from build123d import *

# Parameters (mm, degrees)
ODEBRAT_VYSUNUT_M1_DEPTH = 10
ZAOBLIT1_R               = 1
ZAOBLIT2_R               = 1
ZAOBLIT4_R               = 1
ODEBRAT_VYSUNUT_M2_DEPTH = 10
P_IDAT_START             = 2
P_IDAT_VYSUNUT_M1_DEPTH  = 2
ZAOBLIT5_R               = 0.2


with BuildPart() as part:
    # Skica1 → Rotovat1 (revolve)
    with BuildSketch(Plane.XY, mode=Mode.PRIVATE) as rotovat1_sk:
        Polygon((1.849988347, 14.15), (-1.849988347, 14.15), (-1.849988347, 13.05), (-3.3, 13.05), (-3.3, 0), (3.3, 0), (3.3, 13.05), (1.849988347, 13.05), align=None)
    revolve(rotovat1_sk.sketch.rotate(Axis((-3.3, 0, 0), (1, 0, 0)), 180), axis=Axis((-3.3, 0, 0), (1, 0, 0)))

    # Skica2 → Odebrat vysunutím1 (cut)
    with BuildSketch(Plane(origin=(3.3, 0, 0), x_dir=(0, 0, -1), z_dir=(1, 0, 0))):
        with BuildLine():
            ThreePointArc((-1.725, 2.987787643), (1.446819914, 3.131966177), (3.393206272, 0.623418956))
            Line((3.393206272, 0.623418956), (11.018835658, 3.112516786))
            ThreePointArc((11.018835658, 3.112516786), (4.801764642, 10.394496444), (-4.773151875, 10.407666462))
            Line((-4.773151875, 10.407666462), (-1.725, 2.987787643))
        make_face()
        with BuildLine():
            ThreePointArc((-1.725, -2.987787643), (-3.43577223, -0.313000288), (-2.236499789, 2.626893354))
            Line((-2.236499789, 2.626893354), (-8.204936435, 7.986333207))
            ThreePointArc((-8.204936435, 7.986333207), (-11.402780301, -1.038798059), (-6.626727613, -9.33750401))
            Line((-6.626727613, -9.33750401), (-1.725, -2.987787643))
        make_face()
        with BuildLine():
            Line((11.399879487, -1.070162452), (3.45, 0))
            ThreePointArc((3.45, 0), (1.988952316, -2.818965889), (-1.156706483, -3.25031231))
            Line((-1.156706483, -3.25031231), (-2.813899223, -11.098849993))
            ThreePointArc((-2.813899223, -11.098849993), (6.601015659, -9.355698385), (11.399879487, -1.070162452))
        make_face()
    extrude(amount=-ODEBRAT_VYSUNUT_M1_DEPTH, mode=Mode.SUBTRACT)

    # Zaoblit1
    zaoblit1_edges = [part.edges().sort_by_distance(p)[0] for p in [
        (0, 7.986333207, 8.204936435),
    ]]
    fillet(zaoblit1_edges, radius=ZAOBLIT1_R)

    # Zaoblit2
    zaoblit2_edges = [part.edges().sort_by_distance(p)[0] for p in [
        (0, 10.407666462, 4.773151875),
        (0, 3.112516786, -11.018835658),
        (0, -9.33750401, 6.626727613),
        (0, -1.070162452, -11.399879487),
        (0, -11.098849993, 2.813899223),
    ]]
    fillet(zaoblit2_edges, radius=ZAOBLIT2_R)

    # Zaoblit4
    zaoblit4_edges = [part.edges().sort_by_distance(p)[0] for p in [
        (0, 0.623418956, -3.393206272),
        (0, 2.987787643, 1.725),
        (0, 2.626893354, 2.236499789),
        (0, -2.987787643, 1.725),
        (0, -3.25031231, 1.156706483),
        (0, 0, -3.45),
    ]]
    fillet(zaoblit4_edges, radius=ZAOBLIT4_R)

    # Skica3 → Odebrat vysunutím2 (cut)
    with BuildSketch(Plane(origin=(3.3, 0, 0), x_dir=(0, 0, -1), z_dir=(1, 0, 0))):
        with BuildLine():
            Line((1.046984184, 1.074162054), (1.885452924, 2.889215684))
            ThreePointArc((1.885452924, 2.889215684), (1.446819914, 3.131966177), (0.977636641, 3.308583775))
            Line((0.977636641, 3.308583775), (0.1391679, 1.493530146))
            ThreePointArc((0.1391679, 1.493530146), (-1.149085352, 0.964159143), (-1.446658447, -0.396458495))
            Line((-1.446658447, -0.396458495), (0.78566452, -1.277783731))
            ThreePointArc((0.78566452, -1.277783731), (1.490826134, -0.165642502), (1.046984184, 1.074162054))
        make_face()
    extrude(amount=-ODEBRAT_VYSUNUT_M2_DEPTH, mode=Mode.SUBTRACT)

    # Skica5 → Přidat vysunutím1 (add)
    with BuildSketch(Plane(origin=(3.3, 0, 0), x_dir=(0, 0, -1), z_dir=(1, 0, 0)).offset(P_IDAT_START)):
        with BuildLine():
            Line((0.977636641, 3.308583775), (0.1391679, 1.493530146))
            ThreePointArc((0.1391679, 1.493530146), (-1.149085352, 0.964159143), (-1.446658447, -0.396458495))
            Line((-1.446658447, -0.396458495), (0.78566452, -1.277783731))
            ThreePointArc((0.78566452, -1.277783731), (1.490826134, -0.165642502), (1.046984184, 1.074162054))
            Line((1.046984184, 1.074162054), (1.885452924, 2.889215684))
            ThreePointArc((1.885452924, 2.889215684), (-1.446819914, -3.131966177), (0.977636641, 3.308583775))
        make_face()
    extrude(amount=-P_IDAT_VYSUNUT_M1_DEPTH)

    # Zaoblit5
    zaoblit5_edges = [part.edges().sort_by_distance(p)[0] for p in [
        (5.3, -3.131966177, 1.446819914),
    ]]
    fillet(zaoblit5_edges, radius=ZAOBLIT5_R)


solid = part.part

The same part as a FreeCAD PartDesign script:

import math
import FreeCAD as App
import Part
import Sketcher
from FreeCAD import Vector
Q = App.Units.Quantity


def edges_at(feature, points):
    """Names of the edges that pass closest to the given points."""
    edges = feature.Shape.Edges
    near = lambda p: min(range(len(edges)), key=lambda i: edges[i].distToShape(Part.Vertex(*p))[0])
    return sorted({f"Edge{near(p) + 1}" for p in points})

doc = App.newDocument("Part")
params = doc.addObject("Spreadsheet::Sheet", "Params")
for row, (alias, value) in enumerate([
    ("sketch1_width", "6.6 mm"),
    ("sketch1_height", "1.1 mm"),
    ("sketch1_height2", "13.05 mm"),
    ("revolution_angle", "360 deg"),
    ("sketch2_radius", "3.45 mm"),
    ("sketch2_radius2", "11.45 mm"),
    ("pocket1_length", "10 mm"),
    ("fillet_radius", "1 mm"),
    ("fillet2_radius", "1 mm"),
    ("fillet3_radius", "1 mm"),
    ("sketch3_radius", "1.5 mm"),
    ("sketch3_radius2", "3.45 mm"),
    ("sketch3_length", "2.4 mm"),
    ("pocket2_length", "10 mm"),
    ("sketch4_radius", "1.5 mm"),
    ("sketch4_radius2", "3.45 mm"),
    ("sketch4_length", "2.4 mm"),
    ("pad1_length", "2 mm"),
    ("fillet4_radius", "0.2 mm"),
], start=1):
    params.set(f"A{row}", alias)
    params.set(f"B{row}", "=" + value)
    params.setAlias(f"B{row}", alias)

body = doc.addObject("PartDesign::Body", "Body")

# Sketch on XY plane
sketch1 = body.newObject("Sketcher::SketchObject", "Sketch")
sketch1.AttachmentSupport = (doc.getObject("XY_Plane"), [""])
sketch1.MapMode = "FlatFace"
sketch1.addGeometry([
    Part.LineSegment(Vector(1.849988, 14.15, 0), Vector(-1.849988, 14.15, 0)),  # 0
    Part.LineSegment(Vector(-1.849988, 14.15, 0), Vector(-1.849988, 13.05, 0)),  # 1
    Part.LineSegment(Vector(-1.849988, 13.05, 0), Vector(-3.3, 13.05, 0)),  # 2
    Part.LineSegment(Vector(-3.3, 13.05, 0), Vector(-3.3, 0, 0)),  # 3
    Part.LineSegment(Vector(-3.3, 0, 0), Vector(3.3, 0, 0)),  # 4
    Part.LineSegment(Vector(3.3, 0, 0), Vector(3.3, 13.05, 0)),  # 5
    Part.LineSegment(Vector(3.3, 13.05, 0), Vector(1.849988, 13.05, 0)),  # 6
    Part.LineSegment(Vector(1.849988, 13.05, 0), Vector(1.849988, 14.15, 0)),  # 7
], False)
sketch1.addConstraint([
    Sketcher.Constraint("Coincident", 0, 2, 1, 1),
    Sketcher.Constraint("Coincident", 1, 2, 2, 1),
    Sketcher.Constraint("Coincident", 2, 2, 3, 1),
    Sketcher.Constraint("Coincident", 3, 2, 4, 1),
    Sketcher.Constraint("Coincident", 4, 2, 5, 1),
    Sketcher.Constraint("Coincident", 5, 2, 6, 1),
    Sketcher.Constraint("Coincident", 6, 2, 7, 1),
    Sketcher.Constraint("Coincident", 7, 2, 0, 1),
    Sketcher.Constraint("Horizontal", 0),
    Sketcher.Constraint("Vertical", 1),
    Sketcher.Constraint("Horizontal", 2),
    Sketcher.Constraint("Vertical", 3),
    Sketcher.Constraint("Horizontal", 4),
    Sketcher.Constraint("Vertical", 5),
    Sketcher.Constraint("Horizontal", 6),
    Sketcher.Constraint("Vertical", 7),
    Sketcher.Constraint("Symmetric", 3, 2, 4, 2, -1, 1),
    Sketcher.Constraint("Symmetric", 1, 2, 6, 2, -2),
    Sketcher.Constraint("DistanceX", 4, 1, 4, 2, Q("6.6 mm")),
    Sketcher.Constraint("DistanceY", 1, 2, 1, 1, Q("1.1 mm")),
    Sketcher.Constraint("DistanceY", 3, 2, 3, 1, Q("13.05 mm")),
    Sketcher.Constraint("DistanceX", 2, 2, 2, 1, Q("1.450012 mm")),
])
sketch1.setExpression("Constraints[18]", "Params.sketch1_width")
sketch1.setExpression("Constraints[19]", "Params.sketch1_height")
sketch1.setExpression("Constraints[20]", "Params.sketch1_height2")
revolution = body.newObject("PartDesign::Revolution", "Revolution")
revolution.Profile = sketch1
revolution.ReferenceAxis = (sketch1, ["H_Axis"])
revolution.setExpression("Angle", "Params.revolution_angle")

# Sketch on YZ plane
sketch2 = body.newObject("Sketcher::SketchObject", "Sketch001")
sketch2.AttachmentSupport = (doc.getObject("YZ_Plane"), [""])
sketch2.MapMode = "FlatFace"
sketch2.AttachmentOffset = App.Placement(Vector(0, 0, 3.3), App.Rotation())
sketch2.addGeometry([
    Part.ArcOfCircle(Part.Circle(Vector(0, 0, 0), Vector(0, 0, 1), 3.45), math.radians(-79.589398), math.radians(30)),  # 0
    Part.LineSegment(Vector(0.623419, -3.393206, 0), Vector(3.112517, -11.018836, 0)),  # 1
    Part.ArcOfCircle(Part.Circle(Vector(0, 0, 0), Vector(0, 0, 1), 11.45), math.radians(-74.226479), math.radians(24.637082)),  # 2
    Part.LineSegment(Vector(10.407666, 4.773152, 0), Vector(2.987788, 1.725, 0)),  # 3
    Part.ArcOfCircle(Part.Circle(Vector(0, 0, 0), Vector(0, 0, 1), 3.45), math.radians(40.410602), math.radians(150)),  # 4
    Part.LineSegment(Vector(2.626893, 2.2365, 0), Vector(7.986333, 8.204936, 0)),  # 5
    Part.ArcOfCircle(Part.Circle(Vector(0, 0, 0), Vector(0, 0, 1), 11.45), math.radians(45.773521), math.radians(144.637082)),  # 6
    Part.LineSegment(Vector(-9.337504, 6.626728, 0), Vector(-2.987788, 1.725, 0)),  # 7
    Part.LineSegment(Vector(-1.070162, -11.399879, 0), Vector(0, -3.45, 0)),  # 8
    Part.ArcOfCircle(Part.Circle(Vector(0, 0, 0), Vector(0, 0, 1), 3.45), math.radians(160.410602), math.radians(270)),  # 9
    Part.LineSegment(Vector(-3.250312, 1.156706, 0), Vector(-11.09885, 2.813899, 0)),  # 10
    Part.ArcOfCircle(Part.Circle(Vector(0, 0, 0), Vector(0, 0, 1), 11.45), math.radians(165.773521), math.radians(264.637082)),  # 11
], False)
sketch2.addConstraint([
    Sketcher.Constraint("Coincident", 0, 1, 1, 1),
    Sketcher.Constraint("Coincident", 1, 2, 2, 1),
    Sketcher.Constraint("Coincident", 2, 2, 3, 1),
    Sketcher.Constraint("Coincident", 3, 2, 0, 2),
    Sketcher.Constraint("Coincident", 4, 1, 5, 1),
    Sketcher.Constraint("Coincident", 5, 2, 6, 1),
    Sketcher.Constraint("Coincident", 6, 2, 7, 1),
    Sketcher.Constraint("Coincident", 7, 2, 4, 2),
    Sketcher.Constraint("Coincident", 8, 2, 9, 2),
    Sketcher.Constraint("Coincident", 9, 1, 10, 1),
    Sketcher.Constraint("Coincident", 10, 2, 11, 1),
    Sketcher.Constraint("Coincident", 11, 2, 8, 1),
    Sketcher.Constraint("Coincident", 0, 3, -1, 1),
    Sketcher.Constraint("Coincident", 2, 3, -1, 1),
    Sketcher.Constraint("Coincident", 4, 3, -1, 1),
    Sketcher.Constraint("Coincident", 6, 3, -1, 1),
    Sketcher.Constraint("Coincident", 9, 3, -1, 1),
    Sketcher.Constraint("Coincident", 11, 3, -1, 1),
    Sketcher.Constraint("Equal", 0, 4),
    Sketcher.Constraint("Equal", 2, 6),
    Sketcher.Constraint("Equal", 4, 9),
    Sketcher.Constraint("Equal", 6, 11),
    Sketcher.Constraint("PointOnObject", 8, 2, -2),
    Sketcher.Constraint("Horizontal", 3, 2, 7, 2),
    Sketcher.Constraint("Equal", 1, 3),
    Sketcher.Constraint("Equal", 3, 5),
    Sketcher.Constraint("Equal", 5, 7),
    Sketcher.Constraint("Equal", 7, 8),
    Sketcher.Constraint("Equal", 8, 10),
    Sketcher.Constraint("Radius", 0, Q("3.45 mm")),
    Sketcher.Constraint("Radius", 2, Q("11.45 mm")),
    Sketcher.Constraint("DistanceY", -1, 1, 3, 2, Q("1.725 mm")),
    Sketcher.Constraint("DistanceY", -1, 1, 4, 1, Q("2.2365 mm")),
    Sketcher.Constraint("DistanceY", -1, 1, 10, 2, Q("2.813899 mm")),
    Sketcher.Constraint("DistanceX", -1, 1, 0, 1, Q("0.623419 mm")),
    Sketcher.Constraint("DistanceY", -1, 1, 2, 2, Q("4.773152 mm")),
])
sketch2.setExpression("Constraints[29]", "Params.sketch2_radius")
sketch2.setExpression("Constraints[30]", "Params.sketch2_radius2")
pocket1 = body.newObject("PartDesign::Pocket", "Pocket")
pocket1.Profile = sketch2
pocket1.setExpression("Length", "Params.pocket1_length")
doc.recompute()

fillet = body.newObject("PartDesign::Fillet", "Fillet")
fillet.Base = (pocket1, edges_at(pocket1, [(0, 7.986, 8.205)]))
fillet.setExpression("Radius", "Params.fillet_radius")
doc.recompute()

fillet2 = body.newObject("PartDesign::Fillet", "Fillet001")
fillet2.Base = (fillet, edges_at(fillet, [
    (0, 10.408, 4.773),
    (0, 3.113, -11.019),
    (0, -9.338, 6.627),
    (0, -1.07, -11.4),
    (0, -11.099, 2.814),
]))
fillet2.setExpression("Radius", "Params.fillet2_radius")
doc.recompute()

fillet3 = body.newObject("PartDesign::Fillet", "Fillet002")
fillet3.Base = (fillet2, edges_at(fillet2, [
    (0, 0.623, -3.393),
    (0, 2.988, 1.725),
    (0, 2.627, 2.236),
    (0, -2.988, 1.725),
    (0, -3.25, 1.157),
    (0, 0, -3.45),
]))
fillet3.setExpression("Radius", "Params.fillet3_radius")

# Sketch on YZ plane
sketch3 = body.newObject("Sketcher::SketchObject", "Sketch002")
sketch3.AttachmentSupport = (doc.getObject("YZ_Plane"), [""])
sketch3.MapMode = "FlatFace"
sketch3.AttachmentOffset = App.Placement(Vector(0, 0, 3.3), App.Rotation())
sketch3.addGeometry([
    Part.LineSegment(Vector(1.074162, -1.046984, 0), Vector(2.889216, -1.885453, 0)),  # 0
    Part.ArcOfCircle(Part.Circle(Vector(0, 0, 0), Vector(0, 0, 1), 3.45), math.radians(-33.127782), math.radians(-16.461616)),  # 1
    Part.LineSegment(Vector(3.308584, -0.977637, 0), Vector(1.49353, -0.139168, 0)),  # 2
    Part.ArcOfCircle(Part.Circle(Vector(0, 0, 0), Vector(0, 0, 1), 1.5), math.radians(-5.323478), math.radians(105.325699)),  # 3
    Part.LineSegment(Vector(-0.396458, 1.446658, 0), Vector(-1.277784, -0.785665, 0)),  # 4
    Part.ArcOfCircle(Part.Circle(Vector(0, 0, 0), Vector(0, 0, 1), 1.5), math.radians(-148.414096), math.radians(-44.26592)),  # 5
], False)
sketch3.addConstraint([
    Sketcher.Constraint("Coincident", 0, 2, 1, 1),
    Sketcher.Constraint("Coincident", 1, 2, 2, 1),
    Sketcher.Constraint("Coincident", 2, 2, 3, 1),
    Sketcher.Constraint("Coincident", 3, 2, 4, 1),
    Sketcher.Constraint("Coincident", 4, 2, 5, 1),
    Sketcher.Constraint("Coincident", 5, 2, 0, 1),
    Sketcher.Constraint("Coincident", 1, 3, -1, 1),
    Sketcher.Constraint("Coincident", 3, 3, -1, 1),
    Sketcher.Constraint("Coincident", 5, 3, -1, 1),
    Sketcher.Constraint("Equal", 3, 5),
    Sketcher.Constraint("Parallel", 0, 2),
    Sketcher.Constraint("Equal", 0, 2),
    Sketcher.Constraint("Radius", 3, Q("1.5 mm")),
    Sketcher.Constraint("Radius", 1, Q("3.45 mm")),
    Sketcher.Constraint("Distance", 4, Q("2.4 mm")),
    Sketcher.Constraint("DistanceX", -1, 1, 2, 2, Q("1.49353 mm")),
    Sketcher.Constraint("DistanceX", 3, 2, -1, 1, Q("0.396458 mm")),
    Sketcher.Constraint("DistanceX", 0, 2, 1, 2, Q("0.419368 mm")),
])
sketch3.setExpression("Constraints[12]", "Params.sketch3_radius")
sketch3.setExpression("Constraints[13]", "Params.sketch3_radius2")
sketch3.setExpression("Constraints[14]", "Params.sketch3_length")
pocket2 = body.newObject("PartDesign::Pocket", "Pocket001")
pocket2.Profile = sketch3
pocket2.setExpression("Length", "Params.pocket2_length")

# Sketch on YZ plane
sketch4 = body.newObject("Sketcher::SketchObject", "Sketch003")
sketch4.AttachmentSupport = (doc.getObject("YZ_Plane"), [""])
sketch4.MapMode = "FlatFace"
sketch4.AttachmentOffset = App.Placement(Vector(0, 0, 5.3), App.Rotation())
sketch4.addGeometry([
    Part.LineSegment(Vector(1.49353, -0.139168, 0), Vector(3.308584, -0.977637, 0)),  # 0
    Part.ArcOfCircle(Part.Circle(Vector(0, 0, 0), Vector(0, 0, 1), 3.45), math.radians(-16.461616), math.radians(326.872218)),  # 1
    Part.LineSegment(Vector(2.889216, -1.885453, 0), Vector(1.074162, -1.046984, 0)),  # 2
    Part.ArcOfCircle(Part.Circle(Vector(0, 0, 0), Vector(0, 0, 1), 1.5), math.radians(-148.414096), math.radians(-44.26592)),  # 3
    Part.LineSegment(Vector(-1.277784, -0.785665, 0), Vector(-0.396458, 1.446658, 0)),  # 4
    Part.ArcOfCircle(Part.Circle(Vector(0, 0, 0), Vector(0, 0, 1), 1.5), math.radians(-5.323478), math.radians(105.325699)),  # 5
], False)
sketch4.addConstraint([
    Sketcher.Constraint("Coincident", 0, 2, 1, 1),
    Sketcher.Constraint("Coincident", 1, 2, 2, 1),
    Sketcher.Constraint("Coincident", 2, 2, 3, 2),
    Sketcher.Constraint("Coincident", 3, 1, 4, 1),
    Sketcher.Constraint("Coincident", 4, 2, 5, 2),
    Sketcher.Constraint("Coincident", 5, 1, 0, 1),
    Sketcher.Constraint("Coincident", 1, 3, -1, 1),
    Sketcher.Constraint("Coincident", 3, 3, -1, 1),
    Sketcher.Constraint("Coincident", 5, 3, -1, 1),
    Sketcher.Constraint("Equal", 3, 5),
    Sketcher.Constraint("Parallel", 0, 2),
    Sketcher.Constraint("Equal", 0, 2),
    Sketcher.Constraint("Radius", 3, Q("1.5 mm")),
    Sketcher.Constraint("Radius", 1, Q("3.45 mm")),
    Sketcher.Constraint("Distance", 4, Q("2.4 mm")),
    Sketcher.Constraint("DistanceX", 3, 1, 1, 2, Q("4.166999 mm")),
    Sketcher.Constraint("DistanceX", 4, 2, -1, 1, Q("0.396458 mm")),
    Sketcher.Constraint("DistanceX", -1, 1, 5, 1, Q("1.49353 mm")),
])
sketch4.setExpression("Constraints[12]", "Params.sketch4_radius")
sketch4.setExpression("Constraints[13]", "Params.sketch4_radius2")
sketch4.setExpression("Constraints[14]", "Params.sketch4_length")
pad1 = body.newObject("PartDesign::Pad", "Pad")
pad1.Profile = sketch4
pad1.setExpression("Length", "Params.pad1_length")
pad1.Reversed = True
doc.recompute()

fillet4 = body.newObject("PartDesign::Fillet", "Fillet003")
fillet4.Base = (pad1, edges_at(pad1, [(5.3, -3.132, 1.447)]))
fillet4.setExpression("Radius", "Params.fillet4_radius")

doc.recompute()
